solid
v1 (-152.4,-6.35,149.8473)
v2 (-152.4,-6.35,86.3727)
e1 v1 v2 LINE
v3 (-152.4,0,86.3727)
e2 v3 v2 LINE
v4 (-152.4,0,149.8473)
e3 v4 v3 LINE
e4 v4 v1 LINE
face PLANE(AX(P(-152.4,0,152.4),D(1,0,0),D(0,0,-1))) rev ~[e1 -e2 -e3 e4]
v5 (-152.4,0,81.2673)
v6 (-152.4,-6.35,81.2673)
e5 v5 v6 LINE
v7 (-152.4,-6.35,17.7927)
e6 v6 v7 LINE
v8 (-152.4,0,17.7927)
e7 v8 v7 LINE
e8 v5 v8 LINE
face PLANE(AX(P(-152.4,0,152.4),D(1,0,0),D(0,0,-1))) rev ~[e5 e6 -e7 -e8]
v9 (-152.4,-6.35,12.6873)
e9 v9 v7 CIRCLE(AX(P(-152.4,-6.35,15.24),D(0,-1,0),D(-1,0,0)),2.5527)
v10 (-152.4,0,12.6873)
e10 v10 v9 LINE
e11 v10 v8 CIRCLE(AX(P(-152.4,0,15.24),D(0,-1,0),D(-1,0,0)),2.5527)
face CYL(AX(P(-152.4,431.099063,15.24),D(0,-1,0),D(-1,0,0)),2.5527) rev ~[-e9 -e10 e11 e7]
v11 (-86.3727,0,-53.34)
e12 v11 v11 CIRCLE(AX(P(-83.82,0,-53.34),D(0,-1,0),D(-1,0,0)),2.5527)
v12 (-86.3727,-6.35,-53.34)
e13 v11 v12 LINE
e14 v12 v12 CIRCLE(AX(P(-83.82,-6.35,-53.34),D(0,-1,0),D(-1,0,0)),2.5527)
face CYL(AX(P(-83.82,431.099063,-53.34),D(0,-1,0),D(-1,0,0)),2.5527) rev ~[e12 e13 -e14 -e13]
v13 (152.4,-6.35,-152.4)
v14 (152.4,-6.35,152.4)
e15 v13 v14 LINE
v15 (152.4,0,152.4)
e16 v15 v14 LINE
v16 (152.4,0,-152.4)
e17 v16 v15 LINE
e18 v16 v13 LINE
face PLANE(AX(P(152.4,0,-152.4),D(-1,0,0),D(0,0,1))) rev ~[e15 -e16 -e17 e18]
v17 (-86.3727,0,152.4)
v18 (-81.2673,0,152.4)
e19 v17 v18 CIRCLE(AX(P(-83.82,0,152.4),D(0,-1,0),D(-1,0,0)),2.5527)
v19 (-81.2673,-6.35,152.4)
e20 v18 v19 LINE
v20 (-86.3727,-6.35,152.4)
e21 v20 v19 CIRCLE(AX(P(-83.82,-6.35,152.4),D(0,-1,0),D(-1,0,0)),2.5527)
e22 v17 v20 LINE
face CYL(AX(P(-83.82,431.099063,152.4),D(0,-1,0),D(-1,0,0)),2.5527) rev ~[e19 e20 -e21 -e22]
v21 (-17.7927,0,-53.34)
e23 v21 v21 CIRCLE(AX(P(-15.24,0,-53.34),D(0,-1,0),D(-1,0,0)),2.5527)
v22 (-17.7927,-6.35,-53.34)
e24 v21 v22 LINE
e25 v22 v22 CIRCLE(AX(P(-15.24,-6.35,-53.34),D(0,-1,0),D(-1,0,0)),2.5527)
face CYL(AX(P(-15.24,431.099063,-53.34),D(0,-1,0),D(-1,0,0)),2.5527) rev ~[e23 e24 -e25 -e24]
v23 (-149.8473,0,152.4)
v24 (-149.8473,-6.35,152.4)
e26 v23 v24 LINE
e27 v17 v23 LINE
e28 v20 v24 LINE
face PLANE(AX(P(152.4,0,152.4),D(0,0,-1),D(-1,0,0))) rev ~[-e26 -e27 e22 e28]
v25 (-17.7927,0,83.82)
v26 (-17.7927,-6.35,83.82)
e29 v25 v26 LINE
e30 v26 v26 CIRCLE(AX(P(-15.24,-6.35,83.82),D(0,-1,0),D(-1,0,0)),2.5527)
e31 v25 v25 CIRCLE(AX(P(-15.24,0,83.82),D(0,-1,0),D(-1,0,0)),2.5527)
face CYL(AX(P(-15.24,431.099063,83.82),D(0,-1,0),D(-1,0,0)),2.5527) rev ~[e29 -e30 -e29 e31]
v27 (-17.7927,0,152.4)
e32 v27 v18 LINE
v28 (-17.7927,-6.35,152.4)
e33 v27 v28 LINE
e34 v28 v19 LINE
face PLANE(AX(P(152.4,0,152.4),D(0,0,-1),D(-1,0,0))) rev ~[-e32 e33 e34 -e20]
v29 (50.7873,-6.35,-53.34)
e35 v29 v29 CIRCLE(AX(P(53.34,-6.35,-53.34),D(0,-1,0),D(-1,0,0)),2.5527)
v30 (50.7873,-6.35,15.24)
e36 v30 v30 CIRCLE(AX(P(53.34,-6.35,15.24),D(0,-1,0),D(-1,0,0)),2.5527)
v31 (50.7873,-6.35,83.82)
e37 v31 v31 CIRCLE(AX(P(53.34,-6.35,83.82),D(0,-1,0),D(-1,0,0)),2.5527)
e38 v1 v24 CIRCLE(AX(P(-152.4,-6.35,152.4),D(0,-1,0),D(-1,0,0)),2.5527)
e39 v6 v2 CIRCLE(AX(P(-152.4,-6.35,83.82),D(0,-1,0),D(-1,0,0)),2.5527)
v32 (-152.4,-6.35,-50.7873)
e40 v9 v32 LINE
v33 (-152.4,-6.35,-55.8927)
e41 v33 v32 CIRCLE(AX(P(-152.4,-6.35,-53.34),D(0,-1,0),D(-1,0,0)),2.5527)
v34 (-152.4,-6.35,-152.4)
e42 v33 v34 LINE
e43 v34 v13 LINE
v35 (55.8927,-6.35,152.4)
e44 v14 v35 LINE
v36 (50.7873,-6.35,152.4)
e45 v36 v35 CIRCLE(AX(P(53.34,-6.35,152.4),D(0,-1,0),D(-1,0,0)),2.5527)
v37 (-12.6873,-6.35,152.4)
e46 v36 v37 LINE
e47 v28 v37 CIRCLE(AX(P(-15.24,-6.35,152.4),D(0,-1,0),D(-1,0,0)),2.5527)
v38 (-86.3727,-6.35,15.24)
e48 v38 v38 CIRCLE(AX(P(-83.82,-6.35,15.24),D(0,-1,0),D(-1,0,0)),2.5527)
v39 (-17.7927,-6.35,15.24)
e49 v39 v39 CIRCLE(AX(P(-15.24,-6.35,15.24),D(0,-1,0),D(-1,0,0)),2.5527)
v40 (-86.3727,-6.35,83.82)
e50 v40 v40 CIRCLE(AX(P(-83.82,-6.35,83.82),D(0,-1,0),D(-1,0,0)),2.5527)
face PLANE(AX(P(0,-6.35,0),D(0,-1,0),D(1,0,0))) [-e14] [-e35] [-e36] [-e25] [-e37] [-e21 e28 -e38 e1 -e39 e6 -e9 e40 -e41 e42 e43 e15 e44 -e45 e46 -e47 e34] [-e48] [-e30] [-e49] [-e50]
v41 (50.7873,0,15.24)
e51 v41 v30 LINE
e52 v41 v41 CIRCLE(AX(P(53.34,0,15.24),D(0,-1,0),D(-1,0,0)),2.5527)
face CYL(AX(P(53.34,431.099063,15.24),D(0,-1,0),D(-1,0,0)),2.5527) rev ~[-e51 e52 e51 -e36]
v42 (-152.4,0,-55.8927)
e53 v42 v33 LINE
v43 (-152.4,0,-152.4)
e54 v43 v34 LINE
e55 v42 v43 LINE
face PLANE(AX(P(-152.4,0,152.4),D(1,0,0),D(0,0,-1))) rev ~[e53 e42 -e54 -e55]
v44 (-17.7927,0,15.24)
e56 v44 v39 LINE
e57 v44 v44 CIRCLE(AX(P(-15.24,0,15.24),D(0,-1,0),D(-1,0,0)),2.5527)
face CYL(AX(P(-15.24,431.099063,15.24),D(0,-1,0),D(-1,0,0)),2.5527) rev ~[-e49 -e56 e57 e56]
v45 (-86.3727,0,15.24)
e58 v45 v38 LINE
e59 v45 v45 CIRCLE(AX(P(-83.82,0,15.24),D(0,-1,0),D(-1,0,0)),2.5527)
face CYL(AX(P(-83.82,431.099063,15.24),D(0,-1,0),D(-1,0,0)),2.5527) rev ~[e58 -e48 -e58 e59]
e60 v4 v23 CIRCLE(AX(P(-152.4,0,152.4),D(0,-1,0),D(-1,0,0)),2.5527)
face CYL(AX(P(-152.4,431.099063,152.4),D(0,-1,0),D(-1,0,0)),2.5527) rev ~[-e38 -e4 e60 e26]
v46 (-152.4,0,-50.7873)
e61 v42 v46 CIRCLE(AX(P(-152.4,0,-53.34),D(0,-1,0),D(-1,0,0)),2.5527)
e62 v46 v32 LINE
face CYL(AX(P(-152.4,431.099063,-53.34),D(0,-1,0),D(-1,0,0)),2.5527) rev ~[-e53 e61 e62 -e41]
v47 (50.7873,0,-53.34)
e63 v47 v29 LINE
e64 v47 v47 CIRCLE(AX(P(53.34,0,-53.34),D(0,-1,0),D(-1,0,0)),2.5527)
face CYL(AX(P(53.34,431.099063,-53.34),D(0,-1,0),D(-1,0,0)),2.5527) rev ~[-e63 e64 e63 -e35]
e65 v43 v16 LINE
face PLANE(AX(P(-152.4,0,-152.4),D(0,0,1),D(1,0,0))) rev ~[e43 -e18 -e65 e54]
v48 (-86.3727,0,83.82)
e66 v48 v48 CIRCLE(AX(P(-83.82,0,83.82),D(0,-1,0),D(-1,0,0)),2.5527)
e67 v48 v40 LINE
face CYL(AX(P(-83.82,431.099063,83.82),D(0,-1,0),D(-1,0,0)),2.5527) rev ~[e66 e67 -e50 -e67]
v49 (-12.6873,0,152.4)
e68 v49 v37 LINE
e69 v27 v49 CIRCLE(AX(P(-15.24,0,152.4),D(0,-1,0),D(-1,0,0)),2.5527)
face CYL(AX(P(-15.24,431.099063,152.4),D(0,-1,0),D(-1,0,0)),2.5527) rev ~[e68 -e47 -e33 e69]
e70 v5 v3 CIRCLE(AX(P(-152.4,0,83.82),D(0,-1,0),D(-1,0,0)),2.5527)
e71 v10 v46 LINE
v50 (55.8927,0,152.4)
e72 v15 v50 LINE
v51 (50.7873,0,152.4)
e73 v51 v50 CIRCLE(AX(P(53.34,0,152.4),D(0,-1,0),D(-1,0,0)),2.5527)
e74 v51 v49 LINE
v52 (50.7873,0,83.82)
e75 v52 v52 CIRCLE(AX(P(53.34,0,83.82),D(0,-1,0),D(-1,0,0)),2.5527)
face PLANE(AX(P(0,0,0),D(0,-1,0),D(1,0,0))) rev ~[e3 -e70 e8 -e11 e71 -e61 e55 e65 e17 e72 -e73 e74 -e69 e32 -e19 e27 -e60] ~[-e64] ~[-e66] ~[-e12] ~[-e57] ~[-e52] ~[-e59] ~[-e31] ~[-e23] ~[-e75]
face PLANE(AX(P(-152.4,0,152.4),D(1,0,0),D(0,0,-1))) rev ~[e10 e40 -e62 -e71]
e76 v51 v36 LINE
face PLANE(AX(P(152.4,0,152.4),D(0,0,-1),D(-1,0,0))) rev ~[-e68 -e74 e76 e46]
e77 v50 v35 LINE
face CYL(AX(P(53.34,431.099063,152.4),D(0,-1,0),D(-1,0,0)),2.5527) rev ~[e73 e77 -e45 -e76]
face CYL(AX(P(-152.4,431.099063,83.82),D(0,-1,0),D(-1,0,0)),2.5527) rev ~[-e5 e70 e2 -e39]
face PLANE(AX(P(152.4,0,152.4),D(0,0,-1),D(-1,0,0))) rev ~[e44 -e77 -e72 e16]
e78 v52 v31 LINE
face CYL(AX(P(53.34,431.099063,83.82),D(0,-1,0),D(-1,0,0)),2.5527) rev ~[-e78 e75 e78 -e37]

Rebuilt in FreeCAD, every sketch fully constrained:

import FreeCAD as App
import Part
import Sketcher
Q = App.Units.Quantity


def add_polygon(sketch, points):
    """Adds a closed chain of lines whose ends are joined by coincident constraints."""
    first, n = sketch.GeometryCount, len(points)
    for a, b in zip(points, points[1:] + points[:1]):
        sketch.addGeometry(Part.LineSegment(App.Vector(*a, 0), App.Vector(*b, 0)), False)
    for i in range(n):
        sketch.addConstraint(Sketcher.Constraint("Coincident", first + i, 2, first + (i + 1) % n, 1))

doc = App.newDocument("Part")
body = doc.addObject("PartDesign::Body", "Body")

sketch1 = doc.addObject("Sketcher::SketchObject", "Sketch")
body.addObject(sketch1)
sketch1.AttachmentSupport = (doc.XZ_Plane, [""])
sketch1.MapMode = "FlatFace"
add_polygon(sketch1, [(-152, 152), (-152, -152), (152, -152), (152, 152)])
sketch1.addConstraint([
    Sketcher.Constraint("Vertical", 0),
    Sketcher.Constraint("Horizontal", 1),
    Sketcher.Constraint("Vertical", 2),
    Sketcher.Constraint("Horizontal", 3),
    Sketcher.Constraint("Symmetric", 0, 2, 2, 2, -1, 1),
    Sketcher.Constraint("Equal", 3, 0),
    Sketcher.Constraint("DistanceX", 1, 1, 1, 2, Q("12 in")),
])
pad1 = doc.addObject("PartDesign::Pad", "Pad")
body.addObject(pad1)
pad1.Profile = sketch1
pad1.Length = Q("0.25 in")

sketch2 = doc.addObject("Sketcher::SketchObject", "Sketch001")
body.addObject(sketch2)
sketch2.AttachmentSupport = (doc.XZ_Plane, [""])
sketch2.MapMode = "FlatFace"
sketch2.addGeometry([
    Part.Circle(App.Vector(-83.8, 83.8, 0), App.Vector(0, 0, 1), 2.6),
    Part.Circle(App.Vector(-15.2, 83.8, 0), App.Vector(0, 0, 1), 2.6),
    Part.Circle(App.Vector(53.3, 83.8, 0), App.Vector(0, 0, 1), 2.6),
    Part.Circle(App.Vector(-83.8, 15.2, 0), App.Vector(0, 0, 1), 2.6),
    Part.Circle(App.Vector(-83.8, -53.3, 0), App.Vector(0, 0, 1), 2.6),
    Part.Circle(App.Vector(-15.2, 15.2, 0), App.Vector(0, 0, 1), 2.6),
    Part.Circle(App.Vector(53.3, 15.2, 0), App.Vector(0, 0, 1), 2.6),
    Part.Circle(App.Vector(53.3, -53.3, 0), App.Vector(0, 0, 1), 2.6),
    Part.Circle(App.Vector(-15.2, -53.3, 0), App.Vector(0, 0, 1), 2.6),
    Part.Circle(App.Vector(-83.8, 152.4, 0), App.Vector(0, 0, 1), 2.6),
    Part.Circle(App.Vector(-15.2, 152.4, 0), App.Vector(0, 0, 1), 2.6),
    Part.Circle(App.Vector(53.3, 152.4, 0), App.Vector(0, 0, 1), 2.6),
    Part.Circle(App.Vector(-152.4, 152.4, 0), App.Vector(0, 0, 1), 2.6),
    Part.Circle(App.Vector(-152.4, 83.8, 0), App.Vector(0, 0, 1), 2.6),
    Part.Circle(App.Vector(-152.4, 15.2, 0), App.Vector(0, 0, 1), 2.6),
    Part.Circle(App.Vector(-152.4, -53.3, 0), App.Vector(0, 0, 1), 2.6),
], False)
sketch2.addConstraint([
    Sketcher.Constraint("Equal", 0, 1),
    Sketcher.Constraint("Equal", 1, 2),
    Sketcher.Constraint("Equal", 2, 3),
    Sketcher.Constraint("Equal", 3, 4),
    Sketcher.Constraint("Equal", 4, 5),
    Sketcher.Constraint("Equal", 5, 6),
    Sketcher.Constraint("Equal", 6, 7),
    Sketcher.Constraint("Equal", 7, 8),
    Sketcher.Constraint("Equal", 8, 9),
    Sketcher.Constraint("Equal", 9, 10),
    Sketcher.Constraint("Equal", 10, 11),
    Sketcher.Constraint("Equal", 11, 12),
    Sketcher.Constraint("Equal", 12, 13),
    Sketcher.Constraint("Equal", 13, 14),
    Sketcher.Constraint("Equal", 14, 15),
    Sketcher.Constraint("Horizontal", 0, 3, 1, 3),
    Sketcher.Constraint("Horizontal", 1, 3, 2, 3),
    Sketcher.Constraint("Horizontal", 3, 3, 5, 3),
    Sketcher.Constraint("Horizontal", 5, 3, 6, 3),
    Sketcher.Constraint("Horizontal", 4, 3, 7, 3),
    Sketcher.Constraint("Horizontal", 7, 3, 8, 3),
    Sketcher.Constraint("Horizontal", 9, 3, 10, 3),
    Sketcher.Constraint("Horizontal", 10, 3, 11, 3),
    Sketcher.Constraint("Horizontal", 11, 3, 12, 3),
    Sketcher.Constraint("Horizontal", 2, 3, 13, 3),
    Sketcher.Constraint("Horizontal", 6, 3, 14, 3),
    Sketcher.Constraint("Horizontal", 8, 3, 15, 3),
    Sketcher.Constraint("Vertical", 0, 3, 3, 3),
    Sketcher.Constraint("Vertical", 3, 3, 4, 3),
    Sketcher.Constraint("Vertical", 1, 3, 5, 3),
    Sketcher.Constraint("Vertical", 2, 3, 6, 3),
    Sketcher.Constraint("Vertical", 6, 3, 7, 3),
    Sketcher.Constraint("Vertical", 5, 3, 8, 3),
    Sketcher.Constraint("Vertical", 4, 3, 9, 3),
    Sketcher.Constraint("Vertical", 8, 3, 10, 3),
    Sketcher.Constraint("Vertical", 7, 3, 11, 3),
    Sketcher.Constraint("Vertical", 12, 3, 13, 3),
    Sketcher.Constraint("Vertical", 13, 3, 14, 3),
    Sketcher.Constraint("Vertical", 14, 3, 15, 3),
    Sketcher.Constraint("Diameter", 0, Q("0.201 in")),
    Sketcher.Constraint("DistanceY", -1, 1, 9, 3, Q("6 in")),
    Sketcher.Constraint("DistanceX", 12, 3, -1, 1, Q("6 in")),
    Sketcher.Constraint("DistanceX", 0, 3, -1, 1, Q("3.3 in")),
    Sketcher.Constraint("DistanceY", -1, 1, 0, 3, Q("3.3 in")),
    Sketcher.Constraint("DistanceX", 1, 3, -1, 1, Q("0.6 in")),
    Sketcher.Constraint("DistanceX", -1, 1, 2, 3, Q("2.1 in")),
    Sketcher.Constraint("DistanceY", -1, 1, 3, 3, Q("0.6 in")),
    Sketcher.Constraint("DistanceY", 4, 3, -1, 1, Q("2.1 in")),
])
doc.recompute()
hole = doc.addObject("PartDesign::Hole", "Hole")
body.addObject(hole)
hole.Profile = sketch2
hole.ThreadType = "None"
hole.Diameter = Q("0.201 in")
hole.DepthType = "ThroughAll"
hole.Reversed = True

doc.recompute()
